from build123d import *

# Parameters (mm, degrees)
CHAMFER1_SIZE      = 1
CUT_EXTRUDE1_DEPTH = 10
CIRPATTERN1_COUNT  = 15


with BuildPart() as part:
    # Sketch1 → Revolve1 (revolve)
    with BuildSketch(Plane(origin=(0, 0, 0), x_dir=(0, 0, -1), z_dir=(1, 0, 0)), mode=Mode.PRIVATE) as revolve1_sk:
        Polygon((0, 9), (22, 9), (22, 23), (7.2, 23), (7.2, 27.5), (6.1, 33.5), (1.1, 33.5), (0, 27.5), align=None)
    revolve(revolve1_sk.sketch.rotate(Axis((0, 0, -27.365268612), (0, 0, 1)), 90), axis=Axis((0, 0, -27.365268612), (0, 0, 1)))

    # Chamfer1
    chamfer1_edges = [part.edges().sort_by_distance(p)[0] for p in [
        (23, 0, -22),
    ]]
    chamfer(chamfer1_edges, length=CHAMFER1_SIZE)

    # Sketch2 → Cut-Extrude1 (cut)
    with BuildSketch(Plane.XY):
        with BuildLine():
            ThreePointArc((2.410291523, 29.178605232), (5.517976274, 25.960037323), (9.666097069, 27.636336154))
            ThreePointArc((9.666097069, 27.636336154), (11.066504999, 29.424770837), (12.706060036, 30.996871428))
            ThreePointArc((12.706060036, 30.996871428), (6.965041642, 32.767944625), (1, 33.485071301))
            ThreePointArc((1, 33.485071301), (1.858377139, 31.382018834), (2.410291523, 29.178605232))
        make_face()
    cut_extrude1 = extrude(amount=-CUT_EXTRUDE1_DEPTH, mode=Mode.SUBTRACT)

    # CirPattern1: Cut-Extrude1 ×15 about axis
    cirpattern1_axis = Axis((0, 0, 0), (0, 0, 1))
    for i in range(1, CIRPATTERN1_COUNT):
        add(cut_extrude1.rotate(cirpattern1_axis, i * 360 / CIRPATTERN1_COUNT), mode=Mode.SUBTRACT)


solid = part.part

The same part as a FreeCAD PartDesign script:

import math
import FreeCAD as App
import Part
import Sketcher
Q = App.Units.Quantity


def edges_at(feature, points):
    """Names of the edges that pass closest to the given points."""
    edges = feature.Shape.Edges
    near = lambda p: min(range(len(edges)), key=lambda i: edges[i].distToShape(Part.Vertex(*p))[0])
    return sorted({f"Edge{near(p) + 1}" for p in points})

doc = App.newDocument("Part")
body = doc.addObject("PartDesign::Body", "Body")

# Sketch on YZ plane
sketch1 = body.newObject("Sketcher::SketchObject", "Sketch")
sketch1.AttachmentSupport = (doc.getObject("YZ_Plane"), [""])
sketch1.MapMode = "FlatFace"
sketch1.addGeometry([
    Part.LineSegment(App.Vector(9, 0, 0), App.Vector(9, -22, 0)),  # 0
    Part.LineSegment(App.Vector(9, -22, 0), App.Vector(23, -22, 0)),  # 1
    Part.LineSegment(App.Vector(23, -22, 0), App.Vector(23, -7.2, 0)),  # 2
    Part.LineSegment(App.Vector(23, -7.2, 0), App.Vector(27.5, -7.2, 0)),  # 3
    Part.LineSegment(App.Vector(27.5, -7.2, 0), App.Vector(33.5, -6.1, 0)),  # 4
    Part.LineSegment(App.Vector(33.5, -6.1, 0), App.Vector(33.5, -1.1, 0)),  # 5
    Part.LineSegment(App.Vector(33.5, -1.1, 0), App.Vector(27.5, 0, 0)),  # 6
    Part.LineSegment(App.Vector(27.5, 0, 0), App.Vector(9, 0, 0)),  # 7
], False)
sketch1.addConstraint([
    Sketcher.Constraint("Coincident", 0, 2, 1, 1),
    Sketcher.Constraint("Coincident", 1, 2, 2, 1),
    Sketcher.Constraint("Coincident", 2, 2, 3, 1),
    Sketcher.Constraint("Coincident", 3, 2, 4, 1),
    Sketcher.Constraint("Coincident", 4, 2, 5, 1),
    Sketcher.Constraint("Coincident", 5, 2, 6, 1),
    Sketcher.Constraint("Coincident", 6, 2, 7, 1),
    Sketcher.Constraint("Coincident", 7, 2, 0, 1),
    Sketcher.Constraint("Vertical", 0),
    Sketcher.Constraint("Horizontal", 1),
    Sketcher.Constraint("Vertical", 2),
    Sketcher.Constraint("Horizontal", 3),
    Sketcher.Constraint("Vertical", 5),
    Sketcher.Constraint("Horizontal", 7),
    Sketcher.Constraint("PointOnObject", 6, 2, -1),
    Sketcher.Constraint("Vertical", 3, 2, 6, 2),
    Sketcher.Constraint("Equal", 4, 6),
    Sketcher.Constraint("DistanceX", 1, 1, 1, 2, Q("14 mm")),
    Sketcher.Constraint("DistanceY", 0, 2, 0, 1, Q("22 mm")),
    Sketcher.Constraint("DistanceY", 5, 1, 5, 2, Q("5 mm")),
    Sketcher.Constraint("DistanceX", 3, 1, 3, 2, Q("4.5 mm")),
    Sketcher.Constraint("DistanceY", 2, 1, 2, 2, Q("14.8 mm")),
    Sketcher.Constraint("DistanceX", -1, 1, 0, 2, Q("9 mm")),
    Sketcher.Constraint("DistanceX", 3, 2, 4, 2, Q("6 mm")),
])
revolution = body.newObject("PartDesign::Revolution", "Revolution")
revolution.Profile = sketch1
revolution.ReferenceAxis = (sketch1, ["V_Axis"])
revolution.Angle = 360
doc.recompute()

chamfer = body.newObject("PartDesign::Chamfer", "Chamfer")
chamfer.Base = (revolution, edges_at(revolution, [(23, 0, -22)]))
chamfer.Size = 1

# Sketch on XY plane
sketch2 = body.newObject("Sketcher::SketchObject", "Sketch001")
sketch2.AttachmentSupport = (doc.getObject("XY_Plane"), [""])
sketch2.MapMode = "FlatFace"
sketch2.addGeometry([
    Part.ArcOfCircle(Part.Circle(App.Vector(6.3, 29.9, 0), App.Vector(0, 0, 1), 4), math.radians(-170), math.radians(-34)),
    Part.ArcOfCircle(Part.Circle(App.Vector(22.9, 18.7, 0), App.Vector(0, 0, 1), 16), math.radians(129.73), math.radians(146.01)),
    Part.ArcOfCircle(Part.Circle(App.Vector(0, 0, 0), App.Vector(0, 0, 1), 33.5), math.radians(68), math.radians(88)),
    Part.ArcOfCircle(Part.Circle(App.Vector(-13.3, 26.4, 0), App.Vector(0, 0, 1), 16), math.radians(9.99), math.radians(26.27)),
], False)
sketch2.addConstraint([
    Sketcher.Constraint("Tangent", 0, 2, 1, 2),
    Sketcher.Constraint("Coincident", 1, 1, 2, 1),
    Sketcher.Constraint("Coincident", 2, 2, 3, 2),
    Sketcher.Constraint("Tangent", 3, 1, 0, 1),
    Sketcher.Constraint("Coincident", 2, 3, -1, 1),
    Sketcher.Constraint("Equal", 1, 3),
    Sketcher.Constraint("Radius", 0, Q("4 mm")),
    Sketcher.Constraint("Radius", 1, Q("16 mm")),
    Sketcher.Constraint("Radius", 2, Q("33.5 mm")),
    Sketcher.Constraint("DistanceX", -1, 1, 2, 2, Q("1 mm")),
    Sketcher.Constraint("DistanceY", 1, 3, 1, 1, Q("12.305702 mm")),
    Sketcher.Constraint("DistanceY", 1, 1, 2, 2, Q("2.4882 mm")),
    Sketcher.Constraint("DistanceX", -1, 1, 3, 1, Q("2.410292 mm")),
])
pocket1 = body.newObject("PartDesign::Pocket", "Pocket")
pocket1.Profile = sketch2
pocket1.Length = 10
doc.recompute()

polarpattern = body.newObject("PartDesign::PolarPattern", "PolarPattern")
polarpattern.Originals = [pocket1]
polarpattern.Axis = (doc.getObject("Z_Axis"), [""])
polarpattern.Angle = 360
polarpattern.Occurrences = 15
body.Tip = polarpattern

doc.recompute()
